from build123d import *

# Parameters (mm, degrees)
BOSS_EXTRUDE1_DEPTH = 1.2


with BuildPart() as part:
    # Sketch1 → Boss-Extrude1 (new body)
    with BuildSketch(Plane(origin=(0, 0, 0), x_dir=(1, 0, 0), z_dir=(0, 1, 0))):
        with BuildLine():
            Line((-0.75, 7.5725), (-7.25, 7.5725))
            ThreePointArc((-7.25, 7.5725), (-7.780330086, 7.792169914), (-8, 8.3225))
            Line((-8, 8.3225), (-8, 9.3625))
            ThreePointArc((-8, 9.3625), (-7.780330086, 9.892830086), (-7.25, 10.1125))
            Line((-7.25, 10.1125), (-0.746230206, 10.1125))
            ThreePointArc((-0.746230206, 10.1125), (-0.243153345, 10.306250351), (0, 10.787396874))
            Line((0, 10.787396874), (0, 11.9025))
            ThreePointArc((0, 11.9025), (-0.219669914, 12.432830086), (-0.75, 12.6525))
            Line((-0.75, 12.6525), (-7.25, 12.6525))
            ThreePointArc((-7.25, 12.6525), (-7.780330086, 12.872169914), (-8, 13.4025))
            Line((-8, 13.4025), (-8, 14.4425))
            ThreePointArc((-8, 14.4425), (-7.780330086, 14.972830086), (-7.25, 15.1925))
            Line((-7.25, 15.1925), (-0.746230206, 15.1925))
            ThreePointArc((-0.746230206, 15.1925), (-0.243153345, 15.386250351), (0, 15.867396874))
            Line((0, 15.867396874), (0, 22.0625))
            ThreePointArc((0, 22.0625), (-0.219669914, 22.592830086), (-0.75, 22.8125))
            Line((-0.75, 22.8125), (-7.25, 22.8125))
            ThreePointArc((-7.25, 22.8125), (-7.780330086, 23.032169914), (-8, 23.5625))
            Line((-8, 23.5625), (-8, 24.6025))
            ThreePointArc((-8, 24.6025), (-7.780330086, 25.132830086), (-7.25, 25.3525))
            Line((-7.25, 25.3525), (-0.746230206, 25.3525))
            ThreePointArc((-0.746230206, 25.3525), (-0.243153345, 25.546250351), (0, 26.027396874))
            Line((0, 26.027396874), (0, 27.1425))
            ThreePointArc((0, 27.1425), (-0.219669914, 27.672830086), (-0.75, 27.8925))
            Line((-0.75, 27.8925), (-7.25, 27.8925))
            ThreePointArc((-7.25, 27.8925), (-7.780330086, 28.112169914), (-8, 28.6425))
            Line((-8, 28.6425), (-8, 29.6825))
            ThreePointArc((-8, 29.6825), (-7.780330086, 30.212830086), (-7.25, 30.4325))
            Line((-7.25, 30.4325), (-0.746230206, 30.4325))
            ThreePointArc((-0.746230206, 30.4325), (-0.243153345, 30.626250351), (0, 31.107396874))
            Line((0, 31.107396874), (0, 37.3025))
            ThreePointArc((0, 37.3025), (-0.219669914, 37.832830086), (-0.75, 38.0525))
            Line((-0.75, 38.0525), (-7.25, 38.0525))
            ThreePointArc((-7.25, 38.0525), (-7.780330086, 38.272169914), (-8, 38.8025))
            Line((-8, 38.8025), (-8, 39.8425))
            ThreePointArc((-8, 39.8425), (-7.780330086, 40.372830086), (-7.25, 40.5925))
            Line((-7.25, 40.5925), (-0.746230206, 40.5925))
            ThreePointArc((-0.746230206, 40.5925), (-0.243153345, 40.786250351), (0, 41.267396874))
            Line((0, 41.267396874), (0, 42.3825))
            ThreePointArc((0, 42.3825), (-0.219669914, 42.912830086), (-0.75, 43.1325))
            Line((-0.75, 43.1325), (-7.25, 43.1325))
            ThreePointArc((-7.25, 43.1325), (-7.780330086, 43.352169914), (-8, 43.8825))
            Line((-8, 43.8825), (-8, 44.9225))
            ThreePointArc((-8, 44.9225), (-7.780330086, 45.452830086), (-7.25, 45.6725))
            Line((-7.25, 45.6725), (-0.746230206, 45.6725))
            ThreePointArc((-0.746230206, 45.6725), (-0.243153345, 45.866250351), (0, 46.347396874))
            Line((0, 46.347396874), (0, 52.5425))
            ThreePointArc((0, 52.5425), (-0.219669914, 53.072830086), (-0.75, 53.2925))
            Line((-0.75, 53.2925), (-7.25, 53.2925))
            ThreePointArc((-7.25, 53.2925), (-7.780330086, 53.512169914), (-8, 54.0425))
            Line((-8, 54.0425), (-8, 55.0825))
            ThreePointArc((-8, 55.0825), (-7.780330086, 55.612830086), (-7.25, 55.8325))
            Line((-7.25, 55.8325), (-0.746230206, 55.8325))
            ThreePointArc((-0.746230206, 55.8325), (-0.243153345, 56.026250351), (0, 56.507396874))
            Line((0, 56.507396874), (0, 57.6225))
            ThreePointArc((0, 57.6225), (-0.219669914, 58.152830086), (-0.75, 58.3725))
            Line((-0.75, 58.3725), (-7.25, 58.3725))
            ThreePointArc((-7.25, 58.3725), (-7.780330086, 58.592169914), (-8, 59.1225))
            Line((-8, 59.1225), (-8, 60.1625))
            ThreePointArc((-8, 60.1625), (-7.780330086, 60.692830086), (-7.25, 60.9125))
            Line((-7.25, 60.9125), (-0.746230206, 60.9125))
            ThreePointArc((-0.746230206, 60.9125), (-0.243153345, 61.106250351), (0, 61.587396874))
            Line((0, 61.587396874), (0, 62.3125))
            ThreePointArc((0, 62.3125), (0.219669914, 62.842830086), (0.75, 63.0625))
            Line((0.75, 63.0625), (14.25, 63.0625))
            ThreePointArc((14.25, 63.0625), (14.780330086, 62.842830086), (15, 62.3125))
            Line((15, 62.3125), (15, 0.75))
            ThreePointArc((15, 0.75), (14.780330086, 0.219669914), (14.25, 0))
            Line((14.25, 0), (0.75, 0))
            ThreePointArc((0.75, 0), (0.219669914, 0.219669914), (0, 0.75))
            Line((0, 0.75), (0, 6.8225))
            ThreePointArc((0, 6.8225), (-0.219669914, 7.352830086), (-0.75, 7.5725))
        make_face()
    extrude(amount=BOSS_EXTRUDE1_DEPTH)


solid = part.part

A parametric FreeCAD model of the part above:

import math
import FreeCAD as App
import Part
import Sketcher
from FreeCAD import Vector
Q = App.Units.Quantity

doc = App.newDocument("Part")
body = doc.addObject("PartDesign::Body", "Body")

# Sketch on XZ plane
sketch1 = body.newObject("Sketcher::SketchObject", "Sketch")
sketch1.AttachmentSupport = (doc.getObject("XZ_Plane"), [""])
sketch1.MapMode = "FlatFace"
sketch1.addGeometry([
    Part.LineSegment(Vector(-7.2, -7.6, 0), Vector(-0.8, -7.6, 0)),  # 0
    Part.ArcOfCircle(Part.Circle(Vector(-0.8, -6.8, 0), Vector(0, 0, 1), 0.8), math.radians(-90), math.radians(0)),  # 1
    Part.LineSegment(Vector(0, -6.8, 0), Vector(0, -0.8, 0)),  # 2
    Part.ArcOfCircle(Part.Circle(Vector(0.8, -0.8, 0), Vector(0, 0, 1), 0.8), math.radians(90), math.radians(180)),  # 3
    Part.LineSegment(Vector(0.8, 0, 0), Vector(14.2, 0, 0)),  # 4
    Part.ArcOfCircle(Part.Circle(Vector(14.2, -0.8, 0), Vector(0, 0, 1), 0.8), math.radians(0), math.radians(90)),  # 5
    Part.LineSegment(Vector(15, -0.8, 0), Vector(15, -62.3, 0)),  # 6
    Part.ArcOfCircle(Part.Circle(Vector(14.2, -62.3, 0), Vector(0, 0, 1), 0.8), math.radians(-90), math.radians(0)),  # 7
    Part.LineSegment(Vector(14.2, -63.1, 0), Vector(0.8, -63.1, 0)),  # 8
    Part.ArcOfCircle(Part.Circle(Vector(0.8, -62.3, 0), Vector(0, 0, 1), 0.8), math.radians(180), math.radians(270)),  # 9
    Part.LineSegment(Vector(0, -62.3, 0), Vector(0, -61.6, 0)),  # 10
    Part.ArcOfCircle(Part.Circle(Vector(-0.7, -61.7, 0), Vector(0, 0, 1), 0.8), math.radians(6), math.radians(90)),  # 11
    Part.LineSegment(Vector(-0.7, -60.9, 0), Vector(-7.2, -60.9, 0)),  # 12
    Part.ArcOfCircle(Part.Circle(Vector(-7.2, -60.2, 0), Vector(0, 0, 1), 0.8), math.radians(180), math.radians(270)),  # 13
    Part.LineSegment(Vector(-8, -60.2, 0), Vector(-8, -59.1, 0)),  # 14
    Part.ArcOfCircle(Part.Circle(Vector(-7.2, -59.1, 0), Vector(0, 0, 1), 0.8), math.radians(90), math.radians(180)),  # 15
    Part.LineSegment(Vector(-7.2, -58.4, 0), Vector(-0.8, -58.4, 0)),  # 16
    Part.ArcOfCircle(Part.Circle(Vector(-0.8, -57.6, 0), Vector(0, 0, 1), 0.8), math.radians(-90), math.radians(0)),  # 17
    Part.LineSegment(Vector(0, -57.6, 0), Vector(0, -56.5, 0)),  # 18
    Part.ArcOfCircle(Part.Circle(Vector(-0.7, -56.6, 0), Vector(0, 0, 1), 0.8), math.radians(6), math.radians(90)),  # 19
    Part.LineSegment(Vector(-0.7, -55.8, 0), Vector(-7.2, -55.8, 0)),  # 20
    Part.ArcOfCircle(Part.Circle(Vector(-7.2, -55.1, 0), Vector(0, 0, 1), 0.8), math.radians(180), math.radians(270)),  # 21
    Part.LineSegment(Vector(-8, -55.1, 0), Vector(-8, -54, 0)),  # 22
    Part.ArcOfCircle(Part.Circle(Vector(-7.2, -54, 0), Vector(0, 0, 1), 0.8), math.radians(90), math.radians(180)),  # 23
    Part.LineSegment(Vector(-7.2, -53.3, 0), Vector(-0.8, -53.3, 0)),  # 24
    Part.ArcOfCircle(Part.Circle(Vector(-0.8, -52.5, 0), Vector(0, 0, 1), 0.8), math.radians(-90), math.radians(0)),  # 25
    Part.LineSegment(Vector(0, -52.5, 0), Vector(0, -46.3, 0)),  # 26
    Part.ArcOfCircle(Part.Circle(Vector(-0.7, -46.4, 0), Vector(0, 0, 1), 0.8), math.radians(6), math.radians(90)),  # 27
    Part.LineSegment(Vector(-0.7, -45.7, 0), Vector(-7.2, -45.7, 0)),  # 28
    Part.ArcOfCircle(Part.Circle(Vector(-7.2, -44.9, 0), Vector(0, 0, 1), 0.8), math.radians(180), math.radians(270)),  # 29
    Part.LineSegment(Vector(-8, -44.9, 0), Vector(-8, -43.9, 0)),  # 30
    Part.ArcOfCircle(Part.Circle(Vector(-7.2, -43.9, 0), Vector(0, 0, 1), 0.8), math.radians(90), math.radians(180)),  # 31
    Part.LineSegment(Vector(-7.2, -43.1, 0), Vector(-0.8, -43.1, 0)),  # 32
    Part.ArcOfCircle(Part.Circle(Vector(-0.8, -42.4, 0), Vector(0, 0, 1), 0.8), math.radians(-90), math.radians(0)),  # 33
    Part.LineSegment(Vector(0, -42.4, 0), Vector(0, -41.3, 0)),  # 34
    Part.ArcOfCircle(Part.Circle(Vector(-0.7, -41.3, 0), Vector(0, 0, 1), 0.8), math.radians(6), math.radians(90)),  # 35
    Part.LineSegment(Vector(-0.7, -40.6, 0), Vector(-7.2, -40.6, 0)),  # 36
    Part.ArcOfCircle(Part.Circle(Vector(-7.2, -39.8, 0), Vector(0, 0, 1), 0.8), math.radians(180), math.radians(270)),  # 37
    Part.LineSegment(Vector(-8, -39.8, 0), Vector(-8, -38.8, 0)),  # 38
    Part.ArcOfCircle(Part.Circle(Vector(-7.2, -38.8, 0), Vector(0, 0, 1), 0.8), math.radians(90), math.radians(180)),  # 39
    Part.LineSegment(Vector(-7.2, -38.1, 0), Vector(-0.8, -38.1, 0)),  # 40
    Part.ArcOfCircle(Part.Circle(Vector(-0.8, -37.3, 0), Vector(0, 0, 1), 0.8), math.radians(-90), math.radians(0)),  # 41
    Part.LineSegment(Vector(0, -37.3, 0), Vector(0, -31.1, 0)),  # 42
    Part.ArcOfCircle(Part.Circle(Vector(-0.7, -31.2, 0), Vector(0, 0, 1), 0.8), math.radians(6), math.radians(90)),  # 43
    Part.LineSegment(Vector(-0.7, -30.4, 0), Vector(-7.2, -30.4, 0)),  # 44
    Part.ArcOfCircle(Part.Circle(Vector(-7.2, -29.7, 0), Vector(0, 0, 1), 0.8), math.radians(180), math.radians(270)),  # 45
    Part.LineSegment(Vector(-8, -29.7, 0), Vector(-8, -28.6, 0)),  # 46
    Part.ArcOfCircle(Part.Circle(Vector(-7.2, -28.6, 0), Vector(0, 0, 1), 0.8), math.radians(90), math.radians(180)),  # 47
    Part.LineSegment(Vector(-7.2, -27.9, 0), Vector(-0.8, -27.9, 0)),  # 48
    Part.ArcOfCircle(Part.Circle(Vector(-0.8, -27.1, 0), Vector(0, 0, 1), 0.8), math.radians(-90), math.radians(0)),  # 49
    Part.LineSegment(Vector(0, -27.1, 0), Vector(0, -26, 0)),  # 50
    Part.ArcOfCircle(Part.Circle(Vector(-0.7, -26.1, 0), Vector(0, 0, 1), 0.8), math.radians(6), math.radians(90)),  # 51
    Part.LineSegment(Vector(-0.7, -25.4, 0), Vector(-7.2, -25.4, 0)),  # 52
    Part.ArcOfCircle(Part.Circle(Vector(-7.2, -24.6, 0), Vector(0, 0, 1), 0.8), math.radians(180), math.radians(270)),  # 53
    Part.LineSegment(Vector(-8, -24.6, 0), Vector(-8, -23.6, 0)),  # 54
    Part.ArcOfCircle(Part.Circle(Vector(-7.2, -23.6, 0), Vector(0, 0, 1), 0.8), math.radians(90), math.radians(180)),  # 55
    Part.LineSegment(Vector(-7.2, -22.8, 0), Vector(-0.8, -22.8, 0)),  # 56
    Part.ArcOfCircle(Part.Circle(Vector(-0.8, -22.1, 0), Vector(0, 0, 1), 0.8), math.radians(-90), math.radians(0)),  # 57
    Part.LineSegment(Vector(0, -22.1, 0), Vector(0, -15.9, 0)),  # 58
    Part.ArcOfCircle(Part.Circle(Vector(-0.7, -15.9, 0), Vector(0, 0, 1), 0.8), math.radians(6), math.radians(90)),  # 59
    Part.LineSegment(Vector(-0.7, -15.2, 0), Vector(-7.2, -15.2, 0)),  # 60
    Part.ArcOfCircle(Part.Circle(Vector(-7.2, -14.4, 0), Vector(0, 0, 1), 0.8), math.radians(180), math.radians(270)),  # 61
    Part.LineSegment(Vector(-8, -14.4, 0), Vector(-8, -13.4, 0)),  # 62
    Part.ArcOfCircle(Part.Circle(Vector(-7.2, -13.4, 0), Vector(0, 0, 1), 0.8), math.radians(90), math.radians(180)),  # 63
    Part.LineSegment(Vector(-7.2, -12.7, 0), Vector(-0.8, -12.7, 0)),  # 64
    Part.ArcOfCircle(Part.Circle(Vector(-0.8, -11.9, 0), Vector(0, 0, 1), 0.8), math.radians(-90), math.radians(0)),  # 65
    Part.LineSegment(Vector(0, -11.9, 0), Vector(0, -10.8, 0)),  # 66
    Part.ArcOfCircle(Part.Circle(Vector(-0.7, -10.9, 0), Vector(0, 0, 1), 0.8), math.radians(6), math.radians(90)),  # 67
    Part.LineSegment(Vector(-0.7, -10.1, 0), Vector(-7.2, -10.1, 0)),  # 68
    Part.ArcOfCircle(Part.Circle(Vector(-7.2, -9.4, 0), Vector(0, 0, 1), 0.8), math.radians(180), math.radians(270)),  # 69
    Part.LineSegment(Vector(-8, -9.4, 0), Vector(-8, -8.3, 0)),  # 70
    Part.ArcOfCircle(Part.Circle(Vector(-7.2, -8.3, 0), Vector(0, 0, 1), 0.8), math.radians(90), math.radians(180)),  # 71
], False)
sketch1.addConstraint([
    Sketcher.Constraint("Tangent", 0, 2, 1, 1),
    Sketcher.Constraint("Tangent", 1, 2, 2, 1),
    Sketcher.Constraint("Tangent", 2, 2, 3, 2),
    Sketcher.Constraint("Tangent", 3, 1, 4, 1),
    Sketcher.Constraint("Tangent", 4, 2, 5, 2),
    Sketcher.Constraint("Tangent", 5, 1, 6, 1),
    Sketcher.Constraint("Tangent", 6, 2, 7, 2),
    Sketcher.Constraint("Tangent", 7, 1, 8, 1),
    Sketcher.Constraint("Tangent", 8, 2, 9, 2),
    Sketcher.Constraint("Tangent", 9, 1, 10, 1),
    Sketcher.Constraint("Coincident", 10, 2, 11, 1),
    Sketcher.Constraint("Tangent", 11, 2, 12, 1),
    Sketcher.Constraint("Tangent", 12, 2, 13, 2),
    Sketcher.Constraint("Tangent", 13, 1, 14, 1),
    Sketcher.Constraint("Tangent", 14, 2, 15, 2),
    Sketcher.Constraint("Tangent", 15, 1, 16, 1),
    Sketcher.Constraint("Tangent", 16, 2, 17, 1),
    Sketcher.Constraint("Tangent", 17, 2, 18, 1),
    Sketcher.Constraint("Coincident", 18, 2, 19, 1),
    Sketcher.Constraint("Tangent", 19, 2, 20, 1),
    Sketcher.Constraint("Tangent", 20, 2, 21, 2),
    Sketcher.Constraint("Tangent", 21, 1, 22, 1),
    Sketcher.Constraint("Tangent", 22, 2, 23, 2),
    Sketcher.Constraint("Tangent", 23, 1, 24, 1),
    Sketcher.Constraint("Tangent", 24, 2, 25, 1),
    Sketcher.Constraint("Tangent", 25, 2, 26, 1),
    Sketcher.Constraint("Coincident", 26, 2, 27, 1),
    Sketcher.Constraint("Tangent", 27, 2, 28, 1),
    Sketcher.Constraint("Tangent", 28, 2, 29, 2),
    Sketcher.Constraint("Tangent", 29, 1, 30, 1),
    Sketcher.Constraint("Tangent", 30, 2, 31, 2),
    Sketcher.Constraint("Tangent", 31, 1, 32, 1),
    Sketcher.Constraint("Tangent", 32, 2, 33, 1),
    Sketcher.Constraint("Tangent", 33, 2, 34, 1),
    Sketcher.Constraint("Coincident", 34, 2, 35, 1),
    Sketcher.Constraint("Tangent", 35, 2, 36, 1),
    Sketcher.Constraint("Tangent", 36, 2, 37, 2),
    Sketcher.Constraint("Tangent", 37, 1, 38, 1),
    Sketcher.Constraint("Tangent", 38, 2, 39, 2),
    Sketcher.Constraint("Tangent", 39, 1, 40, 1),
    Sketcher.Constraint("Tangent", 40, 2, 41, 1),
    Sketcher.Constraint("Tangent", 41, 2, 42, 1),
    Sketcher.Constraint("Coincident", 42, 2, 43, 1),
    Sketcher.Constraint("Tangent", 43, 2, 44, 1),
    Sketcher.Constraint("Tangent", 44, 2, 45, 2),
    Sketcher.Constraint("Tangent", 45, 1, 46, 1),
    Sketcher.Constraint("Tangent", 46, 2, 47, 2),
    Sketcher.Constraint("Tangent", 47, 1, 48, 1),
    Sketcher.Constraint("Tangent", 48, 2, 49, 1),
    Sketcher.Constraint("Tangent", 49, 2, 50, 1),
    Sketcher.Constraint("Coincident", 50, 2, 51, 1),
    Sketcher.Constraint("Tangent", 51, 2, 52, 1),
    Sketcher.Constraint("Tangent", 52, 2, 53, 2),
    Sketcher.Constraint("Tangent", 53, 1, 54, 1),
    Sketcher.Constraint("Tangent", 54, 2, 55, 2),
    Sketcher.Constraint("Tangent", 55, 1, 56, 1),
    Sketcher.Constraint("Tangent", 56, 2, 57, 1),
    Sketcher.Constraint("Tangent", 57, 2, 58, 1),
    Sketcher.Constraint("Coincident", 58, 2, 59, 1),
    Sketcher.Constraint("Tangent", 59, 2, 60, 1),
    Sketcher.Constraint("Tangent", 60, 2, 61, 2),
    Sketcher.Constraint("Tangent", 61, 1, 62, 1),
    Sketcher.Constraint("Tangent", 62, 2, 63, 2),
    Sketcher.Constraint("Tangent", 63, 1, 64, 1),
    Sketcher.Constraint("Tangent", 64, 2, 65, 1),
    Sketcher.Constraint("Tangent", 65, 2, 66, 1),
    Sketcher.Constraint("Coincident", 66, 2, 67, 1),
    Sketcher.Constraint("Tangent", 67, 2, 68, 1),
    Sketcher.Constraint("Tangent", 68, 2, 69, 2),
    Sketcher.Constraint("Tangent", 69, 1, 70, 1),
    Sketcher.Constraint("Tangent", 70, 2, 71, 2),
    Sketcher.Constraint("Tangent", 71, 1, 0, 1),
    Sketcher.Constraint("Horizontal", 0),
    Sketcher.Constraint("Vertical", 2),
    Sketcher.Constraint("Horizontal", 4),
    Sketcher.Constraint("Vertical", 6),
    Sketcher.Constraint("Horizontal", 8),
    Sketcher.Constraint("Vertical", 10),
    Sketcher.Constraint("Horizontal", 12),
    Sketcher.Constraint("Vertical", 14),
    Sketcher.Constraint("Horizontal", 16),
    Sketcher.Constraint("Vertical", 18),
    Sketcher.Constraint("Horizontal", 20),
    Sketcher.Constraint("Vertical", 22),
    Sketcher.Constraint("Horizontal", 24),
    Sketcher.Constraint("Vertical", 26),
    Sketcher.Constraint("Horizontal", 28),
    Sketcher.Constraint("Vertical", 30),
    Sketcher.Constraint("Horizontal", 32),
    Sketcher.Constraint("Vertical", 34),
    Sketcher.Constraint("Horizontal", 36),
    Sketcher.Constraint("Vertical", 38),
    Sketcher.Constraint("Horizontal", 40),
    Sketcher.Constraint("Vertical", 42),
    Sketcher.Constraint("Horizontal", 44),
    Sketcher.Constraint("Vertical", 46),
    Sketcher.Constraint("Horizontal", 48),
    Sketcher.Constraint("Vertical", 50),
    Sketcher.Constraint("Horizontal", 52),
    Sketcher.Constraint("Vertical", 54),
    Sketcher.Constraint("Horizontal", 56),
    Sketcher.Constraint("Vertical", 58),
    Sketcher.Constraint("Horizontal", 60),
    Sketcher.Constraint("Vertical", 62),
    Sketcher.Constraint("Horizontal", 64),
    Sketcher.Constraint("Vertical", 66),
    Sketcher.Constraint("Horizontal", 68),
    Sketcher.Constraint("Vertical", 70),
    Sketcher.Constraint("Equal", 1, 3),
    Sketcher.Constraint("Equal", 3, 5),
    Sketcher.Constraint("Equal", 5, 7),
    Sketcher.Constraint("Equal", 7, 9),
    Sketcher.Constraint("Equal", 9, 11),
    Sketcher.Constraint("Equal", 11, 13),
    Sketcher.Constraint("Equal", 13, 15),
    Sketcher.Constraint("Equal", 15, 17),
    Sketcher.Constraint("Equal", 17, 19),
    Sketcher.Constraint("Equal", 19, 21),
    Sketcher.Constraint("Equal", 21, 23),
    Sketcher.Constraint("Equal", 23, 25),
    Sketcher.Constraint("Equal", 25, 27),
    Sketcher.Constraint("Equal", 27, 29),
    Sketcher.Constraint("Equal", 29, 31),
    Sketcher.Constraint("Equal", 31, 33),
    Sketcher.Constraint("Equal", 33, 35),
    Sketcher.Constraint("Equal", 35, 37),
    Sketcher.Constraint("Equal", 37, 39),
    Sketcher.Constraint("Equal", 39, 41),
    Sketcher.Constraint("Equal", 41, 43),
    Sketcher.Constraint("Equal", 43, 45),
    Sketcher.Constraint("Equal", 45, 47),
    Sketcher.Constraint("Equal", 47, 49),
    Sketcher.Constraint("Equal", 49, 51),
    Sketcher.Constraint("Equal", 51, 53),
    Sketcher.Constraint("Equal", 53, 55),
    Sketcher.Constraint("Equal", 55, 57),
    Sketcher.Constraint("Equal", 57, 59),
    Sketcher.Constraint("Equal", 59, 61),
    Sketcher.Constraint("Equal", 61, 63),
    Sketcher.Constraint("Equal", 63, 65),
    Sketcher.Constraint("Equal", 65, 67),
    Sketcher.Constraint("Equal", 67, 69),
    Sketcher.Constraint("Equal", 69, 71),
    Sketcher.Constraint("PointOnObject", 1, 2, -2),
    Sketcher.Constraint("PointOnObject", 3, 1, -1),
    Sketcher.Constraint("PointOnObject", 9, 1, -2),
    Sketcher.Constraint("PointOnObject", 17, 2, -2),
    Sketcher.Constraint("PointOnObject", 25, 2, -2),
    Sketcher.Constraint("PointOnObject", 33, 2, -2),
    Sketcher.Constraint("PointOnObject", 41, 2, -2),
    Sketcher.Constraint("PointOnObject", 49, 2, -2),
    Sketcher.Constraint("PointOnObject", 57, 2, -2),
    Sketcher.Constraint("PointOnObject", 65, 2, -2),
    Sketcher.Constraint("Vertical", 11, 3, 19, 3),
    Sketcher.Constraint("Vertical", 15, 3, 21, 3),
    Sketcher.Constraint("Vertical", 19, 3, 27, 3),
    Sketcher.Constraint("Vertical", 23, 3, 29, 3),
    Sketcher.Constraint("Vertical", 27, 3, 35, 3),
    Sketcher.Constraint("Vertical", 31, 3, 37, 3),
    Sketcher.Constraint("Vertical", 35, 3, 43, 3),
    Sketcher.Constraint("Vertical", 39, 3, 45, 3),
    Sketcher.Constraint("Vertical", 43, 3, 51, 3),
    Sketcher.Constraint("Vertical", 47, 3, 53, 3),
    Sketcher.Constraint("Vertical", 51, 3, 59, 3),
    Sketcher.Constraint("Vertical", 55, 3, 61, 3),
    Sketcher.Constraint("Vertical", 59, 3, 67, 3),
    Sketcher.Constraint("Vertical", 63, 3, 69, 3),
    Sketcher.Constraint("Equal", 14, 22),
    Sketcher.Constraint("Equal", 22, 30),
    Sketcher.Constraint("Equal", 18, 34),
    Sketcher.Constraint("Equal", 30, 38),
    Sketcher.Constraint("Equal", 26, 42),
    Sketcher.Constraint("Equal", 38, 46),
    Sketcher.Constraint("Equal", 34, 50),
    Sketcher.Constraint("Equal", 46, 54),
    Sketcher.Constraint("Equal", 42, 58),
    Sketcher.Constraint("Equal", 54, 62),
    Sketcher.Constraint("Equal", 50, 66),
    Sketcher.Constraint("Equal", 62, 70),
    Sketcher.Constraint("Radius", 1, Q("0.75 mm")),
    Sketcher.Constraint("DistanceX", 0, 1, 0, 2, Q("6.5 mm")),
    Sketcher.Constraint("DistanceX", 4, 1, 4, 2, Q("13.5 mm")),
    Sketcher.Constraint("DistanceY", 14, 1, 14, 2, Q("1.04 mm")),
    Sketcher.Constraint("DistanceY", 2, 1, 2, 2, Q("6.0725 mm")),
    Sketcher.Constraint("DistanceY", 6, 2, 6, 1, Q("61.5625 mm")),
    Sketcher.Constraint("DistanceX", 12, 2, 12, 1, Q("6.50377 mm")),
    Sketcher.Constraint("DistanceY", 11, 3, -1, 1, Q("61.6625 mm")),
    Sketcher.Constraint("DistanceY", 19, 3, -1, 1, Q("56.5825 mm")),
])
pad1 = body.newObject("PartDesign::Pad", "Pad")
pad1.Profile = sketch1
pad1.Length = 1.2
pad1.Reversed = True

doc.recompute()
